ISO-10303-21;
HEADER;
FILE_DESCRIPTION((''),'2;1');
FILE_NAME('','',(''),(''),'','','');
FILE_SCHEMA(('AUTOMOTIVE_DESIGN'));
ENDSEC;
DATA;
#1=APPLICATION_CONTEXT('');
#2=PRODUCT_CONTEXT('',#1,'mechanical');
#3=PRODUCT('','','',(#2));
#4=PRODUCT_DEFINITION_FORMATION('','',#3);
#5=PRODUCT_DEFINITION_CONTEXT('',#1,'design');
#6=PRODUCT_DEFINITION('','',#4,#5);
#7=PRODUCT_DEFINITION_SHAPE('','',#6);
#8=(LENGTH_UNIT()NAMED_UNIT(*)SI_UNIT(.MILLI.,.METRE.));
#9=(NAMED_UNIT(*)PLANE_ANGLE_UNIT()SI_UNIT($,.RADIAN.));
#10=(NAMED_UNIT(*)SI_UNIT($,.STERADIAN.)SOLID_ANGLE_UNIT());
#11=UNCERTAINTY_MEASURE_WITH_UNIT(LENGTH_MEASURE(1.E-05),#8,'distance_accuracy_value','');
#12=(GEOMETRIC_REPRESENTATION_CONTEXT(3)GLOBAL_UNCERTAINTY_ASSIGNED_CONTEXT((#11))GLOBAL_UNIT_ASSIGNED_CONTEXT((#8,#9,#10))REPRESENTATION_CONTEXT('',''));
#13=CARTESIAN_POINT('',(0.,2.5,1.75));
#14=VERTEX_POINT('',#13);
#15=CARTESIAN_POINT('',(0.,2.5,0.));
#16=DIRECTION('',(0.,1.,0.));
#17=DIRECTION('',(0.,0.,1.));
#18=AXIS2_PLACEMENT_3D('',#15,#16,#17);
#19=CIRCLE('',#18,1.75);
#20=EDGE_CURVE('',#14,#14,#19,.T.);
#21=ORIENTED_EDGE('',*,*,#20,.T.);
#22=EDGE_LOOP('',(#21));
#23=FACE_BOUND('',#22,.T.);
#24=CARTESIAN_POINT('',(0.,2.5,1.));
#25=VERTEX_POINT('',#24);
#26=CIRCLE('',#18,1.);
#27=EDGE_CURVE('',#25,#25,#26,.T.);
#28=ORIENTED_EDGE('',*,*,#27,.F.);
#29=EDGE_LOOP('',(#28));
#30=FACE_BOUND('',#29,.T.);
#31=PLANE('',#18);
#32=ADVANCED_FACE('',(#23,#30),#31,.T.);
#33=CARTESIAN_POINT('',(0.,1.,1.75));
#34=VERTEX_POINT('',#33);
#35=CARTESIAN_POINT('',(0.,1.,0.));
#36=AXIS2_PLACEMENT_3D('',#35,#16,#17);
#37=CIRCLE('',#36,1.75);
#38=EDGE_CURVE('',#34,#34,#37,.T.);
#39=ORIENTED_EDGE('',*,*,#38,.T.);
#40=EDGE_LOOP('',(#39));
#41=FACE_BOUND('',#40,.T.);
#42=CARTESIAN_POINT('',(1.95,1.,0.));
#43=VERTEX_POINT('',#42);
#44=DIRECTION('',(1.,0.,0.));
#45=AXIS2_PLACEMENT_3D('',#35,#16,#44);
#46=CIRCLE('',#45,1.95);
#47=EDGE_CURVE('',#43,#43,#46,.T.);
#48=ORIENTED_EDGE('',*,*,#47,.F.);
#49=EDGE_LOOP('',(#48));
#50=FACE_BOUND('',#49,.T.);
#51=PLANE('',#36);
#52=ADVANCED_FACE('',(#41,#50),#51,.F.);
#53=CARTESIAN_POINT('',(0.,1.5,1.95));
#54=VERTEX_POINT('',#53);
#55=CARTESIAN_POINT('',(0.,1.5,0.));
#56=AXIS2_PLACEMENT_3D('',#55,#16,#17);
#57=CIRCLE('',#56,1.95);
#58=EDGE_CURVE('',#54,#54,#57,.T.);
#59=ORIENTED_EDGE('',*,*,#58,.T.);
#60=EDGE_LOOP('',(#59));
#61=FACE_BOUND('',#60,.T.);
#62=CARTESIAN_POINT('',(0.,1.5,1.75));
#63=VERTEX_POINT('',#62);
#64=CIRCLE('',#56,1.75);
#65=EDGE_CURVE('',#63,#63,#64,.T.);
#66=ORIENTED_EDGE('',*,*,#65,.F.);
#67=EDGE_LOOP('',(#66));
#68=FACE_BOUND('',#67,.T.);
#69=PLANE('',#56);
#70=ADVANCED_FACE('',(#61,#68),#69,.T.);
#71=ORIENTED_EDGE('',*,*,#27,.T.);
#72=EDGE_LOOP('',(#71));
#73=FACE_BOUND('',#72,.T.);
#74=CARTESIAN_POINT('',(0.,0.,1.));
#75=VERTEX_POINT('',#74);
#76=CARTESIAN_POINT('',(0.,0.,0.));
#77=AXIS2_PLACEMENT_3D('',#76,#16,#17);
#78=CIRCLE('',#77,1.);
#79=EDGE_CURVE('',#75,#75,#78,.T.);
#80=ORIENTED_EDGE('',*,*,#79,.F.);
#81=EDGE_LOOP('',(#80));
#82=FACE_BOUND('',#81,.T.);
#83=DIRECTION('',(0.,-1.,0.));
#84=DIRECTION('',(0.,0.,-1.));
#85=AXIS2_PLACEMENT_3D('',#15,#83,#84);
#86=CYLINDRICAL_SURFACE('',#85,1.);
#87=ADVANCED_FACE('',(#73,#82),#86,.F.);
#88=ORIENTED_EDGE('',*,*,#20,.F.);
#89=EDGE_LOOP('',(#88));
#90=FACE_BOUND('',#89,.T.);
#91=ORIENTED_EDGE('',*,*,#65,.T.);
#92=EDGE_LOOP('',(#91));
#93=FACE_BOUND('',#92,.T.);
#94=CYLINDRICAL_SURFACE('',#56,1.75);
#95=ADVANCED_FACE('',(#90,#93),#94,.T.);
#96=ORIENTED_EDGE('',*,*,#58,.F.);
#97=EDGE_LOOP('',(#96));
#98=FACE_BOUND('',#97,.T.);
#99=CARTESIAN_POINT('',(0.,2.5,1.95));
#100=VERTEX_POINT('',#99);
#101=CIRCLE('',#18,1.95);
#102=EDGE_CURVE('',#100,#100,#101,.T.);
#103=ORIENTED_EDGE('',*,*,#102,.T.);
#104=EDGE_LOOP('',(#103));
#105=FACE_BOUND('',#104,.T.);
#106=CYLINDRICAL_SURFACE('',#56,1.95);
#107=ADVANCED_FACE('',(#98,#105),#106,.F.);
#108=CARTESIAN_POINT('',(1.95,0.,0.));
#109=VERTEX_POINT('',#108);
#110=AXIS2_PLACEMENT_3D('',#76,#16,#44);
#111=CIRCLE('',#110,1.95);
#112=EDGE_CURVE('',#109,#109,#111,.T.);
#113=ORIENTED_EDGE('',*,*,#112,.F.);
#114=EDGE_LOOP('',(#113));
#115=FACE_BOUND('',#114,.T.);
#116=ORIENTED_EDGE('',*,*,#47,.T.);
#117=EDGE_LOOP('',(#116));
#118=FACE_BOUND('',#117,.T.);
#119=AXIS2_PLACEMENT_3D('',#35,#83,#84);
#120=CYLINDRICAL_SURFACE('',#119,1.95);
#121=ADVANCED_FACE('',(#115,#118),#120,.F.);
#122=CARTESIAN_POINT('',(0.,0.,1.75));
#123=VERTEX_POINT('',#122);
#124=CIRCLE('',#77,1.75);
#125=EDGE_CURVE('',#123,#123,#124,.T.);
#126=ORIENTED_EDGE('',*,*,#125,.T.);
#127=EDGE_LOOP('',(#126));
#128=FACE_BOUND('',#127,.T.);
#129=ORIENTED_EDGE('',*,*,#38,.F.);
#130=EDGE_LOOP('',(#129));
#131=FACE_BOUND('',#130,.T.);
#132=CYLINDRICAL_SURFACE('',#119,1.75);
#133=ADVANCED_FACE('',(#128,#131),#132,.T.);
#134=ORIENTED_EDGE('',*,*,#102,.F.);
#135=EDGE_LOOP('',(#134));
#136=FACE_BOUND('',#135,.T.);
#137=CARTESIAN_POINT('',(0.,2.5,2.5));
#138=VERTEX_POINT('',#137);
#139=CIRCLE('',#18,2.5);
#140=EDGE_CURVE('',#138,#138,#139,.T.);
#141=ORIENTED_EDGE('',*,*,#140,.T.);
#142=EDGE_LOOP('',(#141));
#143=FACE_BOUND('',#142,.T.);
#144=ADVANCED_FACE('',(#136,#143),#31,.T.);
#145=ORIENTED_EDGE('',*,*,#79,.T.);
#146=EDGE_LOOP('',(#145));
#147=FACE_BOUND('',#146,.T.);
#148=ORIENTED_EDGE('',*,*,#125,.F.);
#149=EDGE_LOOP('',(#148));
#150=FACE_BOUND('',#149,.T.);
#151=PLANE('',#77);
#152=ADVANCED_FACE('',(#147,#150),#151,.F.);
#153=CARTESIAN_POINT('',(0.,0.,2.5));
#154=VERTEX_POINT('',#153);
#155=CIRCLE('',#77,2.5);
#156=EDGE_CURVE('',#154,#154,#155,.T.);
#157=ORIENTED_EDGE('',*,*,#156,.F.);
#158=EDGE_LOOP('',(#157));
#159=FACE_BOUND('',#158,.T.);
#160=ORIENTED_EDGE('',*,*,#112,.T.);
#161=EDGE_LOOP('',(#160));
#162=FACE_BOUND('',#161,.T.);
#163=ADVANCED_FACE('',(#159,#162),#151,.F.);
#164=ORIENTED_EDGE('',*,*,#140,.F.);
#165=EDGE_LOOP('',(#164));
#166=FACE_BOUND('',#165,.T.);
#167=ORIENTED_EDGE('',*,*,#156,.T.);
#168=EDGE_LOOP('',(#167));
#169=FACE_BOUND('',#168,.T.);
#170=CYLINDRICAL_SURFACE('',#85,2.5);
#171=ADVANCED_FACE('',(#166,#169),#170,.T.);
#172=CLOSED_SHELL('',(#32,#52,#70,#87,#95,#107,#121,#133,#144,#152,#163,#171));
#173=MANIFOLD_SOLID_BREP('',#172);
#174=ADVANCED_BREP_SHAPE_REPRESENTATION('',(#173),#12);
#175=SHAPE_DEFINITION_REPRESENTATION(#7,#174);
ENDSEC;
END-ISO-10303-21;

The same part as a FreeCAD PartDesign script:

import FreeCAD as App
import Part
import Sketcher
from FreeCAD import Vector
Q = App.Units.Quantity

doc = App.newDocument("Part")
params = doc.addObject("Spreadsheet::Sheet", "Params")
for row, (alias, value) in enumerate([
    ("sketch1_diameter", "5 mm"),
    ("sketch1_diameter2", "2 mm"),
    ("pad1_length", "2.5 mm"),
    ("sketch2_diameter", "3.9 mm"),
    ("sketch2_diameter2", "3.5 mm"),
    ("pocket1_length", "1 mm"),
    ("sketch3_diameter", "3.9 mm"),
    ("sketch3_diameter2", "3.5 mm"),
    ("pocket2_length", "1 mm"),
], start=1):
    params.set(f"A{row}", alias)
    params.set(f"B{row}", "=" + value)
    params.setAlias(f"B{row}", alias)

body = doc.addObject("PartDesign::Body", "Body")

# Sketch on XZ plane
sketch1 = body.newObject("Sketcher::SketchObject", "Sketch")
sketch1.AttachmentSupport = (doc.getObject("XZ_Plane"), [""])
sketch1.MapMode = "FlatFace"
sketch1.addGeometry(Part.Circle(Vector(0, 0, 0), Vector(0, 0, 1), 2.5), False)
sketch1.addGeometry(Part.Circle(Vector(0, 0, 0), Vector(0, 0, 1), 1), False)
sketch1.addConstraint(Sketcher.Constraint("Coincident", 0, 3, -1, 1))
sketch1.addConstraint(Sketcher.Constraint("Coincident", 1, 3, -1, 1))
sketch1.addConstraint(Sketcher.Constraint("Diameter", 0, Q("5 mm")))
sketch1.addConstraint(Sketcher.Constraint("Diameter", 1, Q("2 mm")))
sketch1.setExpression("Constraints[2]", "Params.sketch1_diameter")
sketch1.setExpression("Constraints[3]", "Params.sketch1_diameter2")
pad1 = body.newObject("PartDesign::Pad", "Pad")
pad1.Profile = sketch1
pad1.setExpression("Length", "Params.pad1_length")
pad1.Reversed = True

# Sketch on XZ plane
sketch2 = body.newObject("Sketcher::SketchObject", "Sketch001")
sketch2.AttachmentSupport = (doc.getObject("XZ_Plane"), [""])
sketch2.MapMode = "FlatFace"
sketch2.addGeometry(Part.Circle(Vector(0, 0, 0), Vector(0, 0, 1), 1.95), False)
sketch2.addGeometry(Part.Circle(Vector(0, 0, 0), Vector(0, 0, 1), 1.75), False)
sketch2.addConstraint(Sketcher.Constraint("Coincident", 0, 3, -1, 1))
sketch2.addConstraint(Sketcher.Constraint("Coincident", 1, 3, -1, 1))
sketch2.addConstraint(Sketcher.Constraint("Diameter", 0, Q("3.9 mm")))
sketch2.addConstraint(Sketcher.Constraint("Diameter", 1, Q("3.5 mm")))
sketch2.setExpression("Constraints[2]", "Params.sketch2_diameter")
sketch2.setExpression("Constraints[3]", "Params.sketch2_diameter2")
pocket1 = body.newObject("PartDesign::Pocket", "Pocket")
pocket1.Profile = sketch2
pocket1.setExpression("Length", "Params.pocket1_length")

# Sketch on XZ plane
sketch3 = body.newObject("Sketcher::SketchObject", "Sketch002")
sketch3.AttachmentSupport = (doc.getObject("XZ_Plane"), [""])
sketch3.MapMode = "FlatFace"
sketch3.AttachmentOffset = App.Placement(Vector(0, 0, -1.5), App.Rotation())
sketch3.addGeometry(Part.Circle(Vector(0, 0, 0), Vector(0, 0, 1), 1.95), False)
sketch3.addGeometry(Part.Circle(Vector(0, 0, 0), Vector(0, 0, 1), 1.75), False)
sketch3.addConstraint(Sketcher.Constraint("Coincident", 0, 3, -1, 1))
sketch3.addConstraint(Sketcher.Constraint("Coincident", 1, 3, -1, 1))
sketch3.addConstraint(Sketcher.Constraint("Diameter", 0, Q("3.9 mm")))
sketch3.addConstraint(Sketcher.Constraint("Diameter", 1, Q("3.5 mm")))
sketch3.setExpression("Constraints[2]", "Params.sketch3_diameter")
sketch3.setExpression("Constraints[3]", "Params.sketch3_diameter2")
pocket2 = body.newObject("PartDesign::Pocket", "Pocket001")
pocket2.Profile = sketch3
pocket2.setExpression("Length", "Params.pocket2_length")

doc.recompute()
